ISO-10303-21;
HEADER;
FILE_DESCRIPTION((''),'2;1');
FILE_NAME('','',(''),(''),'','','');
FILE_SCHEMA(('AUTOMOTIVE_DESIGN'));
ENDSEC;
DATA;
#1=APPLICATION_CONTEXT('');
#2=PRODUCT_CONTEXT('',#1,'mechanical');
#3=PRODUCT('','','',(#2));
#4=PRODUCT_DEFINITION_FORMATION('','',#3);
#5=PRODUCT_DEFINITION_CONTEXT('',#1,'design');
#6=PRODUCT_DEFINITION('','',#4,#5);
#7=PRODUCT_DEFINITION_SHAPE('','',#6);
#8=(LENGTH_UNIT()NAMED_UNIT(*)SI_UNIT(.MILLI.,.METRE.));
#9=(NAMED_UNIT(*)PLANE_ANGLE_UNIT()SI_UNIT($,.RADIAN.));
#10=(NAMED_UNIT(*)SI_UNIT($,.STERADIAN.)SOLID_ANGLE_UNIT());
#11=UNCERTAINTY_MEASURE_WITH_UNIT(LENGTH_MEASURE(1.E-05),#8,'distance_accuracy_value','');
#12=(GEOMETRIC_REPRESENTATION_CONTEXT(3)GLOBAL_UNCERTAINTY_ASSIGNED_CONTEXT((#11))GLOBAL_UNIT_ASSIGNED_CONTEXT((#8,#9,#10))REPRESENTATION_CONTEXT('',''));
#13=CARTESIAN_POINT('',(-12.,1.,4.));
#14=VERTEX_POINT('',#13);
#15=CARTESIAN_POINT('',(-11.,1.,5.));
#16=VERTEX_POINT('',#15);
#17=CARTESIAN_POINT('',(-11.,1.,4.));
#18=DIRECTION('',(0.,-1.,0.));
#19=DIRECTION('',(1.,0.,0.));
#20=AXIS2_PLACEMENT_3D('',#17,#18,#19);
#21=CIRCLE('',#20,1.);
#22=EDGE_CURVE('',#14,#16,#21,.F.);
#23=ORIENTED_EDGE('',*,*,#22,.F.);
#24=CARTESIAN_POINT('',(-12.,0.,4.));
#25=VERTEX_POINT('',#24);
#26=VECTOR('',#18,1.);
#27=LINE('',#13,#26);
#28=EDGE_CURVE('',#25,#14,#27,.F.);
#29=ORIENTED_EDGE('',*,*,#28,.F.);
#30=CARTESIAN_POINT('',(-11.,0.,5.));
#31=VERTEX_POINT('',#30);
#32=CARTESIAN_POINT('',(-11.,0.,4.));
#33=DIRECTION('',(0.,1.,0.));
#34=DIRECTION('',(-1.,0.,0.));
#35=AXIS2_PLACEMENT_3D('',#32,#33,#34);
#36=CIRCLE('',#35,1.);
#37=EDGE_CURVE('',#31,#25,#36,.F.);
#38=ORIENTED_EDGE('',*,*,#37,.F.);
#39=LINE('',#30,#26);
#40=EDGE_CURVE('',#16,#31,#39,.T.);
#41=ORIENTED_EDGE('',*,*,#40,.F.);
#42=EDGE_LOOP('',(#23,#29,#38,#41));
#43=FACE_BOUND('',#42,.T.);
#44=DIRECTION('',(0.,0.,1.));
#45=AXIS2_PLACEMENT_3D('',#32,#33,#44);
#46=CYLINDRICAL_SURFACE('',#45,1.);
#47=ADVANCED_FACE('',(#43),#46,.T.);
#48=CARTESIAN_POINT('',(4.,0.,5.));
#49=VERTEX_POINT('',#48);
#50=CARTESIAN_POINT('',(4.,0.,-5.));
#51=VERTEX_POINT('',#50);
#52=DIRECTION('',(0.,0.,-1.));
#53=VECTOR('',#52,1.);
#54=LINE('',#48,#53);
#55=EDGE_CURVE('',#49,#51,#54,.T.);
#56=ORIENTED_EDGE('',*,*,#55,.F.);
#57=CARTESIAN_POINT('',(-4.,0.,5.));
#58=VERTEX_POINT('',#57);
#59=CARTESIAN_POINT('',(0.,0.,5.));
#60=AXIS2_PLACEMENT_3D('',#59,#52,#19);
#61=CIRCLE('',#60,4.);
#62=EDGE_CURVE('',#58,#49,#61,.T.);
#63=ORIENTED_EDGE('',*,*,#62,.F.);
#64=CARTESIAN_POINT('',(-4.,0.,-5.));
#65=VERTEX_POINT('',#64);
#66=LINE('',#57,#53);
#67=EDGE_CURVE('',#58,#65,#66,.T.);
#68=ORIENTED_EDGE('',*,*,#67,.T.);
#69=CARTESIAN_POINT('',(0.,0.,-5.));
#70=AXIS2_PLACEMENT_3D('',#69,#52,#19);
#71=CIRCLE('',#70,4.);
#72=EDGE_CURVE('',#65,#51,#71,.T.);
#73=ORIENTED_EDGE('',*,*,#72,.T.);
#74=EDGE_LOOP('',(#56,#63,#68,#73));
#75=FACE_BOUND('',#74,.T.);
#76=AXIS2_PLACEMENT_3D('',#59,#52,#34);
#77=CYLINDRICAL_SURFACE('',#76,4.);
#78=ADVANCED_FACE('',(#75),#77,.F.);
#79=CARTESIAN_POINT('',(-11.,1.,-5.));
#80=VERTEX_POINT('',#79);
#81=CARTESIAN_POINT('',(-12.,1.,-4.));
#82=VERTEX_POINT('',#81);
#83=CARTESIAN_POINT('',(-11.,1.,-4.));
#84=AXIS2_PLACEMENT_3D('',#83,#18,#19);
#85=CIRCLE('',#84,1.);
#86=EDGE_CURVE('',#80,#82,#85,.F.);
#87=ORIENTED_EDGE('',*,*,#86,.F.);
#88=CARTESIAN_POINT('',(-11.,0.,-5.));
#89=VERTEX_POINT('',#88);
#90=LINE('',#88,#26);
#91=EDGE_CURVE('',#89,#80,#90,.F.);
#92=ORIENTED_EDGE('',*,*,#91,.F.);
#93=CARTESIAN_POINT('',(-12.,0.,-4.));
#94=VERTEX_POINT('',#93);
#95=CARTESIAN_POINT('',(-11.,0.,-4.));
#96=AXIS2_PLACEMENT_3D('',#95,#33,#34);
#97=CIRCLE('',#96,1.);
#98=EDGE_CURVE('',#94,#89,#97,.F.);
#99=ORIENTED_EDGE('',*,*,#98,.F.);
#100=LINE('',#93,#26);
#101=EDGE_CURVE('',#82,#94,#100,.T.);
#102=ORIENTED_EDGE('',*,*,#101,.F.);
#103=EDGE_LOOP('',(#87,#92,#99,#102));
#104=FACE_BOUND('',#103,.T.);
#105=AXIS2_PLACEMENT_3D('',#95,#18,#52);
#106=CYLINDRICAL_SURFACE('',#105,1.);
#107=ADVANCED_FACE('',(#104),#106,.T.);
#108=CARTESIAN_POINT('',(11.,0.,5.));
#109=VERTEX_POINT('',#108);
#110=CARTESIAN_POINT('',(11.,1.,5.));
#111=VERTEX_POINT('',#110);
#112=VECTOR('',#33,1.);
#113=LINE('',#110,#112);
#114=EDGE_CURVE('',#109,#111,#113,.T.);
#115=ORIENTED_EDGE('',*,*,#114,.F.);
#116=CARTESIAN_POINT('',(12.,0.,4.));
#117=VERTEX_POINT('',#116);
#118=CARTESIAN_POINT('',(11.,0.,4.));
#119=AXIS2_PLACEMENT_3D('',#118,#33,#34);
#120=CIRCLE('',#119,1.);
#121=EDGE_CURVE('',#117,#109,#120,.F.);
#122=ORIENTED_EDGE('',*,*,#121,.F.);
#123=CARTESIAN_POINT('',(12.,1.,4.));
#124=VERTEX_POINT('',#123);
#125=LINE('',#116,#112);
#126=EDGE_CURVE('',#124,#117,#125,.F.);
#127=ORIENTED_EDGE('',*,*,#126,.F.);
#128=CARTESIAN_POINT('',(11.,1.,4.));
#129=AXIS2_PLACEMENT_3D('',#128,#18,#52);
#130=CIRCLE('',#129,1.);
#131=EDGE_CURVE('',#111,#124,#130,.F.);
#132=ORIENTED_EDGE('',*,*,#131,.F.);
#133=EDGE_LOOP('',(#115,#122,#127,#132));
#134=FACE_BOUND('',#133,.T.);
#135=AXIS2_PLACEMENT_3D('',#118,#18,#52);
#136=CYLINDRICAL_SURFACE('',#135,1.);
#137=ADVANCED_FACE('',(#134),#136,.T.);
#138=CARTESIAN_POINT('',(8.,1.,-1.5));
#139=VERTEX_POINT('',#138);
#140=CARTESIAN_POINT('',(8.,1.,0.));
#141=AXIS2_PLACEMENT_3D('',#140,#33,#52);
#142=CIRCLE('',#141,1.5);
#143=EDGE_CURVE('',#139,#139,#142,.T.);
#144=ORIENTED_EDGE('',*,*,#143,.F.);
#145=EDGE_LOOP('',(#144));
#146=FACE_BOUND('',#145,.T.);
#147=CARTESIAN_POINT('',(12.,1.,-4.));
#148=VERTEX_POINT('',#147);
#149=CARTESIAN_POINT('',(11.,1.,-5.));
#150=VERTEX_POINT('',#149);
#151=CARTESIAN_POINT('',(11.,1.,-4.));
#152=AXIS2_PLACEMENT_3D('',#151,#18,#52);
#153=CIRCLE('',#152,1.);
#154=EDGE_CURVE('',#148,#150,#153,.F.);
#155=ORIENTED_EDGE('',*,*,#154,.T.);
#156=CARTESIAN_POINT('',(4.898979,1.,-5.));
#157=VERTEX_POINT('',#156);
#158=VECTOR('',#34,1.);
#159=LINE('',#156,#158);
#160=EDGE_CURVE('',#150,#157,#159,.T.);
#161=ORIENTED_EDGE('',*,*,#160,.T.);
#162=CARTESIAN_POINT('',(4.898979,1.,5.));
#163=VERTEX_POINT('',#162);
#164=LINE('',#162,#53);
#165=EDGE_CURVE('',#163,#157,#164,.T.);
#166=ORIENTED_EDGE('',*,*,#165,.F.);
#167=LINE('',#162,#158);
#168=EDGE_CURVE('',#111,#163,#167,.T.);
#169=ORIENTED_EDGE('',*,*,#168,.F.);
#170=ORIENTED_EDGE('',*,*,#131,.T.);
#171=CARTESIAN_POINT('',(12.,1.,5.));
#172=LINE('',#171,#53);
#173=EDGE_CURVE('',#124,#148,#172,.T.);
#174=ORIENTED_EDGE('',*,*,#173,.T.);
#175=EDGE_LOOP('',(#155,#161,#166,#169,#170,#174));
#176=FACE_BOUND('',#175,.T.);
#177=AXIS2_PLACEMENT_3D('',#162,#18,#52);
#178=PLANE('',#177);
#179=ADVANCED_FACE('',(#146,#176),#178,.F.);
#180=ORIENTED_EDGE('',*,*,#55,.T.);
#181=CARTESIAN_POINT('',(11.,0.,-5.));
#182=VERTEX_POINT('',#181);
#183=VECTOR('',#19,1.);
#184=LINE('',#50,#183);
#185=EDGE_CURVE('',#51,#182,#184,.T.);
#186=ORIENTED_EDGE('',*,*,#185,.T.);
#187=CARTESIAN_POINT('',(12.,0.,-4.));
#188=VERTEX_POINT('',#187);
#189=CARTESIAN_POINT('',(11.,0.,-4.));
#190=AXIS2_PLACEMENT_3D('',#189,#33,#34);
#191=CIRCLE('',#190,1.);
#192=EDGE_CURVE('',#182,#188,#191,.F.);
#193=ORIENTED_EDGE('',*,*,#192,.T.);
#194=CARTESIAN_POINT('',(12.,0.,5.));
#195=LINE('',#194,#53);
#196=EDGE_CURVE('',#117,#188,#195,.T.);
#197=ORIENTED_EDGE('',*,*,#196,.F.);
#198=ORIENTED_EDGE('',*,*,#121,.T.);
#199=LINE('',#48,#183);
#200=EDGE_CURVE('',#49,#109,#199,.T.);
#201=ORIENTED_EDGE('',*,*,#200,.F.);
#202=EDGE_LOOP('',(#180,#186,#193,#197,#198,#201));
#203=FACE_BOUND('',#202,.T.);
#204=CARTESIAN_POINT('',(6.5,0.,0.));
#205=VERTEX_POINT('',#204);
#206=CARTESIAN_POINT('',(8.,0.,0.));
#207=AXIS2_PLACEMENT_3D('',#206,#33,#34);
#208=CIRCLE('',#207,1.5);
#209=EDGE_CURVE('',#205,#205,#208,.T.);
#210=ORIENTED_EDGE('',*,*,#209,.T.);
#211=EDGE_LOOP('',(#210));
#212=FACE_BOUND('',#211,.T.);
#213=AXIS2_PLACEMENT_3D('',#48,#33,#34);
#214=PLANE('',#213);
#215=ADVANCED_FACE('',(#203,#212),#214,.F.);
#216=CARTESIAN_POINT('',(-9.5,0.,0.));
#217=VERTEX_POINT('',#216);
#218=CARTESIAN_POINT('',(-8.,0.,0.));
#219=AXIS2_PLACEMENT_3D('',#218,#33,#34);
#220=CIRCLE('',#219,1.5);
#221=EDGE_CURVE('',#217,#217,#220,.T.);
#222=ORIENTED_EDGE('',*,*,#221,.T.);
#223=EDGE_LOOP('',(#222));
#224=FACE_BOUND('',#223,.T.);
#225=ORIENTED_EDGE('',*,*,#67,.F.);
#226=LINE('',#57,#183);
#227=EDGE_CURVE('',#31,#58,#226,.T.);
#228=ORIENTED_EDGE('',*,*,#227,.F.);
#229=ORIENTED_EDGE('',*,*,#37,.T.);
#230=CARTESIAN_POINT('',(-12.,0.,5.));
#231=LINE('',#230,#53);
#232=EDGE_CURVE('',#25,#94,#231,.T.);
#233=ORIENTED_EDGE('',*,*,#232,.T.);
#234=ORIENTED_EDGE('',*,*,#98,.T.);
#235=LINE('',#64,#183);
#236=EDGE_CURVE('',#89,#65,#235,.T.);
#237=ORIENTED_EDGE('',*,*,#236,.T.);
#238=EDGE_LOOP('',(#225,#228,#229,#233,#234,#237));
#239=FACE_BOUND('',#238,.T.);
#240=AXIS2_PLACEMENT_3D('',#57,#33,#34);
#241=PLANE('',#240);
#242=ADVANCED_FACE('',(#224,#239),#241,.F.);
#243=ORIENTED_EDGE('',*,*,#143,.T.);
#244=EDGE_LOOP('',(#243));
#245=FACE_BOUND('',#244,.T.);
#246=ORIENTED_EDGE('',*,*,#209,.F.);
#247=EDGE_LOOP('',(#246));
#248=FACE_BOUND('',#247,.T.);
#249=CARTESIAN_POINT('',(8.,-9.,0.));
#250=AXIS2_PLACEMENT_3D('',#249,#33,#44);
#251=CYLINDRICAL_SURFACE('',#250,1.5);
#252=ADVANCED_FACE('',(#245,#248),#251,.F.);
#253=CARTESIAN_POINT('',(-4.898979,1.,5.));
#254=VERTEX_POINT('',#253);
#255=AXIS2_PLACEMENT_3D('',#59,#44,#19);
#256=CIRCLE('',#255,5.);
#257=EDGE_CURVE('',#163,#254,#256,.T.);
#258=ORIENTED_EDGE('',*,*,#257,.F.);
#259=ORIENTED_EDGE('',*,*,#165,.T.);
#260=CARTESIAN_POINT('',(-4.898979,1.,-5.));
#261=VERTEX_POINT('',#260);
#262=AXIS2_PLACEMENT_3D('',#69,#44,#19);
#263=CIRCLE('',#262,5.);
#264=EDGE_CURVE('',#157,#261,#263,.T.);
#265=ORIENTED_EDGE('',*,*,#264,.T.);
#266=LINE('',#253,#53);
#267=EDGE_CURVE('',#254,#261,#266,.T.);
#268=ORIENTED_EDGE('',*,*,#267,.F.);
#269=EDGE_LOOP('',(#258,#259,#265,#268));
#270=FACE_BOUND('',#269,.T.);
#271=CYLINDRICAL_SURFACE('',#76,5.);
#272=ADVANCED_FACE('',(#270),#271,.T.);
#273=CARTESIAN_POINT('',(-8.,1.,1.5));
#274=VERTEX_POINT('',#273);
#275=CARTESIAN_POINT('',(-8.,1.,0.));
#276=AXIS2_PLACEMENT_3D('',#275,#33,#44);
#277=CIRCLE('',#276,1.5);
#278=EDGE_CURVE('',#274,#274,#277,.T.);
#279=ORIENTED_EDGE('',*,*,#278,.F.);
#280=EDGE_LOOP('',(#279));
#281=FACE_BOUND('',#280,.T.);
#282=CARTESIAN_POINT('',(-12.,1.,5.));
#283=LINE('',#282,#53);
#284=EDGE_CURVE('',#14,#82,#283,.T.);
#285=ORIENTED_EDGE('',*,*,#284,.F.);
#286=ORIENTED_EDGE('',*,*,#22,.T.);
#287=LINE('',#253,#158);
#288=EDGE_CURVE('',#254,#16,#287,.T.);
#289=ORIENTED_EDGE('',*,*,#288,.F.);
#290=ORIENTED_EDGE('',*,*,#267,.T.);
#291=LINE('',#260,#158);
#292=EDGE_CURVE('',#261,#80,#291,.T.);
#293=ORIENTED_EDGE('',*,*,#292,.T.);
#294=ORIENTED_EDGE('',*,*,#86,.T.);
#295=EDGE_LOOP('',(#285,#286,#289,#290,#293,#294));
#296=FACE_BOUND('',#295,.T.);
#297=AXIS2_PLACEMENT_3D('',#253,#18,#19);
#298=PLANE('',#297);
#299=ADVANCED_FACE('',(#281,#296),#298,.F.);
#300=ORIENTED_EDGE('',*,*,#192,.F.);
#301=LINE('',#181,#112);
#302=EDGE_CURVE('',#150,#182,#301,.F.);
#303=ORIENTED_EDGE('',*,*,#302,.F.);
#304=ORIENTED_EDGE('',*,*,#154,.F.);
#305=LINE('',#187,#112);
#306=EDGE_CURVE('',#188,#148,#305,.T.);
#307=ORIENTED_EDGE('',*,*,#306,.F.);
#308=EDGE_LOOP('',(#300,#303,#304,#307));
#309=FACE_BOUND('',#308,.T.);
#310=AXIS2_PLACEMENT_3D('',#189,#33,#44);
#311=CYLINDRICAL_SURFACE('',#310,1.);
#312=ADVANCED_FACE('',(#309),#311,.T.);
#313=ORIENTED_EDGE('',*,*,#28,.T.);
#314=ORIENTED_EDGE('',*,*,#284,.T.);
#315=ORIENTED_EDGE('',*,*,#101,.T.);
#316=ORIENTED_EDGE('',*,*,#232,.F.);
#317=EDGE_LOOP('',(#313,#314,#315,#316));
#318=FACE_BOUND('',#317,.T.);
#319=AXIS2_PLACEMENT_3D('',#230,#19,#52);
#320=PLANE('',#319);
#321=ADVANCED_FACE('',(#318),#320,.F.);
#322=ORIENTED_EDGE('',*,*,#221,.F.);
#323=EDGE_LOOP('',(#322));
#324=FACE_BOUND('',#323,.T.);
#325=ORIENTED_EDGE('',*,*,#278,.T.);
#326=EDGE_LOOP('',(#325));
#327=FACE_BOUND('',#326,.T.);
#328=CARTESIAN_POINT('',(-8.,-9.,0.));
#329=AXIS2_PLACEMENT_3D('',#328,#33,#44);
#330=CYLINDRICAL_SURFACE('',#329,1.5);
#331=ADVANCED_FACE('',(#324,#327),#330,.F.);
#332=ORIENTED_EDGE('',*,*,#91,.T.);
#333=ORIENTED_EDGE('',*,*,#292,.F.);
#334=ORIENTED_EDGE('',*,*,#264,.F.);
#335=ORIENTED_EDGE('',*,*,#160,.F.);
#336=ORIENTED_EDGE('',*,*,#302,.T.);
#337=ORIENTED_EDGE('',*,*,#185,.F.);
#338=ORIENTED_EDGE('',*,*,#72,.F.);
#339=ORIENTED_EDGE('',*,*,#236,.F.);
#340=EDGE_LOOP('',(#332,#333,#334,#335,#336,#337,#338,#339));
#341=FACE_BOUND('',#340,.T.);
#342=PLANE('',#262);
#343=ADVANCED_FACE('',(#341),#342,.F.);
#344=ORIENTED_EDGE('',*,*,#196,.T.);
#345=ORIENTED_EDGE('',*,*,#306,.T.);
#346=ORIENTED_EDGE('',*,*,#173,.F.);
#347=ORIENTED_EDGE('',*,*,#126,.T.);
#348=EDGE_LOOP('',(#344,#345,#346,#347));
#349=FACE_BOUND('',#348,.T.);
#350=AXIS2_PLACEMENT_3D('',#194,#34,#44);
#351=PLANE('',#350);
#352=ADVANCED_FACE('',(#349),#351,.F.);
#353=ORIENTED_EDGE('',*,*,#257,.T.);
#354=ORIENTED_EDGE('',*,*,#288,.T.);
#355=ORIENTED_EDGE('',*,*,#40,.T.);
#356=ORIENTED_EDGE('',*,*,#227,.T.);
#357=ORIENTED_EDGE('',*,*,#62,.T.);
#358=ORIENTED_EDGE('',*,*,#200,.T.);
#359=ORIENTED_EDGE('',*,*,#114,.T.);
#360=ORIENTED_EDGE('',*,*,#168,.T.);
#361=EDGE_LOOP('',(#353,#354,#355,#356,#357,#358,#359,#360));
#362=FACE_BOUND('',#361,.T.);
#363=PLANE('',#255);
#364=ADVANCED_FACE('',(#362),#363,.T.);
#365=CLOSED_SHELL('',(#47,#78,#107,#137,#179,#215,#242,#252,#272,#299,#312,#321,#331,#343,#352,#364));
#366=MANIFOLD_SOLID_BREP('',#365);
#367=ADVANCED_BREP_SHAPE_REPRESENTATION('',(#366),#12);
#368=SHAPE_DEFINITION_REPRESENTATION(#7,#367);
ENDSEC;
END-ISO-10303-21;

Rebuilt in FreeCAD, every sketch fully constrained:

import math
import FreeCAD as App
import Part
import Sketcher
from FreeCAD import Vector


def edges_at(feature, points):
    """Names of the edges that pass closest to the given points."""
    edges = feature.Shape.Edges
    near = lambda p: min(range(len(edges)), key=lambda i: edges[i].distToShape(Part.Vertex(*p))[0])
    return sorted({f"Edge{near(p) + 1}" for p in points})

doc = App.newDocument("Part")
body = doc.addObject("PartDesign::Body", "Body")

sketch1 = doc.addObject("Sketcher::SketchObject", "Sketch")
body.addObject(sketch1)
sketch1.AttachmentSupport = (doc.XY_Plane, [""])
sketch1.MapMode = "FlatFace"
sketch1.addGeometry([
    Part.LineSegment(Vector(4, 0, 0), Vector(12, 0, 0)),
    Part.LineSegment(Vector(12, 0, 0), Vector(12, 1, 0)),
    Part.LineSegment(Vector(12, 1, 0), Vector(4.9, 1, 0)),
    Part.ArcOfCircle(Part.Circle(Vector(0, 0, 0), Vector(0, 0, 1), 5), math.radians(12), math.radians(168)),
    Part.LineSegment(Vector(-4.9, 1, 0), Vector(-12, 1, 0)),
    Part.LineSegment(Vector(-12, 1, 0), Vector(-12, 0, 0)),
    Part.LineSegment(Vector(-12, 0, 0), Vector(-4, 0, 0)),
    Part.ArcOfCircle(Part.Circle(Vector(0, 0, 0), Vector(0, 0, 1), 4), math.radians(0), math.radians(180)),
], False)
sketch1.addConstraint([
    Sketcher.Constraint("Coincident", 0, 2, 1, 1),
    Sketcher.Constraint("Coincident", 1, 2, 2, 1),
    Sketcher.Constraint("Coincident", 2, 2, 3, 1),
    Sketcher.Constraint("Coincident", 3, 2, 4, 1),
    Sketcher.Constraint("Coincident", 4, 2, 5, 1),
    Sketcher.Constraint("Coincident", 5, 2, 6, 1),
    Sketcher.Constraint("Coincident", 6, 2, 7, 2),
    Sketcher.Constraint("Coincident", 7, 1, 0, 1),
    Sketcher.Constraint("Horizontal", 0),
    Sketcher.Constraint("Vertical", 1),
    Sketcher.Constraint("Horizontal", 2),
    Sketcher.Constraint("Horizontal", 4),
    Sketcher.Constraint("Vertical", 5),
    Sketcher.Constraint("Horizontal", 6),
    Sketcher.Constraint("Coincident", 3, 3, -1, 1),
    Sketcher.Constraint("Coincident", 7, 3, -1, 1),
    Sketcher.Constraint("Symmetric", 0, 2, 5, 2, -1, 1),
    Sketcher.Constraint("PointOnObject", 0, 2, -1),
    Sketcher.Constraint("Horizontal", 2, 2, 3, 2),
    Sketcher.Constraint("Radius", 3, 5.0),
    Sketcher.Constraint("Radius", 7, 4.0),
    Sketcher.Constraint("DistanceX", 0, 1, 0, 2, 8.0),
    Sketcher.Constraint("DistanceY", 1, 1, 1, 2, 1.0),
])
pad1 = doc.addObject("PartDesign::Pad", "Pad")
body.addObject(pad1)
pad1.Profile = sketch1
pad1.Length = 10
pad1.Midplane = True
doc.recompute()

fillet = doc.addObject("PartDesign::Fillet", "Fillet")
body.addObject(fillet)
fillet.Base = (pad1, edges_at(pad1, [
    (-12, 0.5, -5),
    (-12, 0.5, 5),
    (12, 0.5, 5),
    (12, 0.5, -5),
]))
fillet.Radius = 1

sketch2 = doc.addObject("Sketcher::SketchObject", "Sketch001")
body.addObject(sketch2)
sketch2.AttachmentSupport = (doc.XZ_Plane, [""])
sketch2.MapMode = "FlatFace"
sketch2.AttachmentOffset = App.Placement(Vector(0, 0, -1), App.Rotation())
sketch2.addGeometry([
    Part.Circle(Vector(-8, 0, 0), Vector(0, 0, 1), 1.5),
    Part.Circle(Vector(8, 0, 0), Vector(0, 0, 1), 1.5),
], False)
sketch2.addConstraint([
    Sketcher.Constraint("Equal", 0, 1),
    Sketcher.Constraint("Symmetric", 0, 3, 1, 3, -1, 1),
    Sketcher.Constraint("PointOnObject", 0, 3, -1),
    Sketcher.Constraint("Diameter", 0, 3.0),
    Sketcher.Constraint("DistanceX", 0, 3, -1, 1, 8.0),
])
pocket1 = doc.addObject("PartDesign::Pocket", "Pocket")
body.addObject(pocket1)
pocket1.Profile = sketch2
pocket1.Length = 10
pocket1.Reversed = True

doc.recompute()
